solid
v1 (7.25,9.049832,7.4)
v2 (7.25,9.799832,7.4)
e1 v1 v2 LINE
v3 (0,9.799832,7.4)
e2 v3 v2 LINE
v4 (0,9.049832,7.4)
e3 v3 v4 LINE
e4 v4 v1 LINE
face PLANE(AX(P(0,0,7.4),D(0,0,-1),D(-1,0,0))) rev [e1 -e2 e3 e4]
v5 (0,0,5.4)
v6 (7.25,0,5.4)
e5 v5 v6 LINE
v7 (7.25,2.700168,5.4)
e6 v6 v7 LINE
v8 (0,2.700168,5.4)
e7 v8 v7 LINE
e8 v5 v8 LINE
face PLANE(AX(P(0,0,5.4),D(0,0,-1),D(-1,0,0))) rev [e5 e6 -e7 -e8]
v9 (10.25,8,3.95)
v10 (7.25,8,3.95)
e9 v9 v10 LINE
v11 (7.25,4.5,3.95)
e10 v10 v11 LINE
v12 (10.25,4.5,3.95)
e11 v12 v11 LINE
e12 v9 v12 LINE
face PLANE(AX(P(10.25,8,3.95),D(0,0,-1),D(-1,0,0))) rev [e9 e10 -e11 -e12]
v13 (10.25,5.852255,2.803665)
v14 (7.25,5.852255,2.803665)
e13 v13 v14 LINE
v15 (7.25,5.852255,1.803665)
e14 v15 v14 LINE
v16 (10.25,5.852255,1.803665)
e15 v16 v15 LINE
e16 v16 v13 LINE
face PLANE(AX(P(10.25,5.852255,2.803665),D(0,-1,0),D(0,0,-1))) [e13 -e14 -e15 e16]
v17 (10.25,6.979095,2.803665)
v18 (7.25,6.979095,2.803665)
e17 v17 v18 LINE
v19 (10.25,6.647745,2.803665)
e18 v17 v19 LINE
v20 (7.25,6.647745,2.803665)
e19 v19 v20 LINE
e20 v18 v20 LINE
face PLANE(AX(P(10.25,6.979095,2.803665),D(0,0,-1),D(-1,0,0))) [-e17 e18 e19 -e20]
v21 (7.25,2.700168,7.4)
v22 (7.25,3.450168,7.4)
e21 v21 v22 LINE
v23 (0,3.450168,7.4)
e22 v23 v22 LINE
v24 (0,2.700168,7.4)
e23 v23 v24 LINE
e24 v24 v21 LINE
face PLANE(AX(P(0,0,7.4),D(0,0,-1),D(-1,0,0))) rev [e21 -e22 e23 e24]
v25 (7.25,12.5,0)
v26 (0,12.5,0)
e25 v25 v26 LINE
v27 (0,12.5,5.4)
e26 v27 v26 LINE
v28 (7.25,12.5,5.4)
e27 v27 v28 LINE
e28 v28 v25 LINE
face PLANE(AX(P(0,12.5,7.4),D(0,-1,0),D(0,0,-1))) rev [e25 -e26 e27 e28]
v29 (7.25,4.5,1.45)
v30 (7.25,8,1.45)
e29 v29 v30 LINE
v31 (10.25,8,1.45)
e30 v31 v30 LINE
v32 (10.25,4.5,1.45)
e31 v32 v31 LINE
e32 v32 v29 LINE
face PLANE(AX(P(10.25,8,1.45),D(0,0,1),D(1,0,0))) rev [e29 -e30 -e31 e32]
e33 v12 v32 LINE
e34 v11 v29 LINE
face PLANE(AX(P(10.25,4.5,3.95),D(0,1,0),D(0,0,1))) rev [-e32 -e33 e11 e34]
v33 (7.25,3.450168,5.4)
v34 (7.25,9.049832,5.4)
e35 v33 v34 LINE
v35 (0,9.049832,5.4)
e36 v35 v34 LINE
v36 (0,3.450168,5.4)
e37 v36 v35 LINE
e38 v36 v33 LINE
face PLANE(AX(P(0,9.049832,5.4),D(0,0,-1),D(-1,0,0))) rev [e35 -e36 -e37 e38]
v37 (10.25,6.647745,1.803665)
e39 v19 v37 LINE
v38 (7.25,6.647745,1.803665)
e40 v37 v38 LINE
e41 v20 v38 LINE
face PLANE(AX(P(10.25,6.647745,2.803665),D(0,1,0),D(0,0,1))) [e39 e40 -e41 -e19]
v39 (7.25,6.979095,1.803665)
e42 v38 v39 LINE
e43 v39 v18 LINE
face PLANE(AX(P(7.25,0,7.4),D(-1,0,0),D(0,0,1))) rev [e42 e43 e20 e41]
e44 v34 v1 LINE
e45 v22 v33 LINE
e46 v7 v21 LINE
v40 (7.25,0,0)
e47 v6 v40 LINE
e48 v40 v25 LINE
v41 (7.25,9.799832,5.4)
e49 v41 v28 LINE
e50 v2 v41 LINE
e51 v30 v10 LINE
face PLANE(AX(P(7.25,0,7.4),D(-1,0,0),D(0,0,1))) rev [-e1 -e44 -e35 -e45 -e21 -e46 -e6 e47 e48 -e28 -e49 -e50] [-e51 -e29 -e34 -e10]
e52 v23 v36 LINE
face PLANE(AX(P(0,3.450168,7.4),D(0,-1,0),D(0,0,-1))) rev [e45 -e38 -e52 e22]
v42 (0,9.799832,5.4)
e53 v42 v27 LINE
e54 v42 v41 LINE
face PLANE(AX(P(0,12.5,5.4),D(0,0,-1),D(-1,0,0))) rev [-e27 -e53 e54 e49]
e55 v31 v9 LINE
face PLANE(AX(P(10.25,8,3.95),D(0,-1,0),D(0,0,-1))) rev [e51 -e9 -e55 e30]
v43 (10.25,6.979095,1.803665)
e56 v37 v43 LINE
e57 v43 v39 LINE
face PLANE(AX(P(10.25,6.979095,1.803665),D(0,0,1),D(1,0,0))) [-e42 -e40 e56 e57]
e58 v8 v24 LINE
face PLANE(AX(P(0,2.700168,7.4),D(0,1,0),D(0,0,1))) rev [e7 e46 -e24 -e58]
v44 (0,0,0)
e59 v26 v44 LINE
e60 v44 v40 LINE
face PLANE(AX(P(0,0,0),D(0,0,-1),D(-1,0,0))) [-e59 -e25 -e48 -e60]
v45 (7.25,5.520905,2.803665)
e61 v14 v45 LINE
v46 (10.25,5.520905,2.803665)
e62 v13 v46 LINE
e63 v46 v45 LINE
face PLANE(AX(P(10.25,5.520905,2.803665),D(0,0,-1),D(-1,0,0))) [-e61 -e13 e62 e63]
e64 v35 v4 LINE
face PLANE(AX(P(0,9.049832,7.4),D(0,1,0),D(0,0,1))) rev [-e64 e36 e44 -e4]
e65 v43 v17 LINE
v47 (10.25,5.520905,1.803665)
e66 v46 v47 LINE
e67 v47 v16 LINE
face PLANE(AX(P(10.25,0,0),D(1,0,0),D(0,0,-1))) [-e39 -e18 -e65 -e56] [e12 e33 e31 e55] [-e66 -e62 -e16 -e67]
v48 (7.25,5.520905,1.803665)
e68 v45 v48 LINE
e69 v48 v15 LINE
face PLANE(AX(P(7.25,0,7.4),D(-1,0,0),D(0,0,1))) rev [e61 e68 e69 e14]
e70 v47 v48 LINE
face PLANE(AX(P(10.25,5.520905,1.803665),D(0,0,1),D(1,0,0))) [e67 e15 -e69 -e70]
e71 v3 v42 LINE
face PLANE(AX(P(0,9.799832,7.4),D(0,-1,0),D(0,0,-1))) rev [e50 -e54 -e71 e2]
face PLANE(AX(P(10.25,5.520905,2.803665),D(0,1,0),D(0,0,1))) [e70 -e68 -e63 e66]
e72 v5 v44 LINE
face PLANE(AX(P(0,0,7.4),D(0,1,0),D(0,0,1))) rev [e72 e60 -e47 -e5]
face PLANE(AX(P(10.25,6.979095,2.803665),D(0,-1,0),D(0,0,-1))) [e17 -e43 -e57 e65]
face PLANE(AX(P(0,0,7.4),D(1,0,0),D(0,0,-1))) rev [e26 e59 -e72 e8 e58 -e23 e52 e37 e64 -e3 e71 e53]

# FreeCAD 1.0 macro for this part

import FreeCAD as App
import Part
import Sketcher

V = App.Vector

doc = App.newDocument("Part")
params = doc.addObject("Spreadsheet::Sheet", "Params")
for row, (alias, value) in enumerate([
    ("sketch1_height", "12.5 mm"),
    ("sketch1_width", "7.25 mm"),
    ("pad1_length", "7.4 mm"),
    ("sketch2_height", "2 mm"),
    ("sketch3_height", "1 mm"),
    ("sketch3_width", "3.5 mm"),
    ("sketch3_height2", "2.5 mm"),
    ("pad2_length", "3 mm"),
], start=1):
    params.set(f"A{row}", alias)
    params.set(f"B{row}", "=" + value)
    params.setAlias(f"B{row}", alias)

body = doc.addObject("PartDesign::Body", "Body")

# Sketch on XY plane
sketch1 = body.newObject("Sketcher::SketchObject", "Sketch")
sketch1.AttachmentSupport = (doc.getObject("XY_Plane"), [""])
sketch1.MapMode = "FlatFace"
sketch1.addGeometry(Part.LineSegment(V(0, 12.5, 0), V(0, 0, 0)), False)
sketch1.addGeometry(Part.LineSegment(V(0, 0, 0), V(7.25, 0, 0)), False)
sketch1.addGeometry(Part.LineSegment(V(7.25, 0, 0), V(7.25, 12.5, 0)), False)
sketch1.addGeometry(Part.LineSegment(V(7.25, 12.5, 0), V(0, 12.5, 0)), False)
sketch1.addConstraint(Sketcher.Constraint("Coincident", 0, 2, 1, 1))
sketch1.addConstraint(Sketcher.Constraint("Coincident", 1, 2, 2, 1))
sketch1.addConstraint(Sketcher.Constraint("Coincident", 2, 2, 3, 1))
sketch1.addConstraint(Sketcher.Constraint("Coincident", 3, 2, 0, 1))
sketch1.addConstraint(Sketcher.Constraint("Vertical", 0))
sketch1.addConstraint(Sketcher.Constraint("Horizontal", 1))
sketch1.addConstraint(Sketcher.Constraint("Vertical", 2))
sketch1.addConstraint(Sketcher.Constraint("Horizontal", 3))
sketch1.addConstraint(Sketcher.Constraint("Coincident", 0, 2, -1, 1))
sketch1.addConstraint(Sketcher.Constraint("DistanceY", 0, 2, 0, 1, 12.5))
sketch1.addConstraint(Sketcher.Constraint("DistanceX", 1, 1, 1, 2, 7.25))
sketch1.setExpression("Constraints[9]", "Params.sketch1_height")
sketch1.setExpression("Constraints[10]", "Params.sketch1_width")
pad1 = body.newObject("PartDesign::Pad", "Pad")
pad1.Profile = sketch1
pad1.setExpression("Length", "Params.pad1_length")

# Sketch on YZ plane
sketch2 = body.newObject("Sketcher::SketchObject", "Sketch001")
sketch2.AttachmentSupport = (doc.getObject("YZ_Plane"), [""])
sketch2.MapMode = "FlatFace"
sketch2.AttachmentOffset = App.Placement(V(0, 0, 7.25), App.Rotation())
sketch2.addGeometry(Part.LineSegment(V(12.5, 7.4, 0), V(9.799832, 7.4, 0)), False)
sketch2.addGeometry(Part.LineSegment(V(9.799832, 7.4, 0), V(9.799832, 5.4, 0)), False)
sketch2.addGeometry(Part.LineSegment(V(9.799832, 5.4, 0), V(12.5, 5.4, 0)), False)
sketch2.addGeometry(Part.LineSegment(V(12.5, 5.4, 0), V(12.5, 7.4, 0)), False)
sketch2.addGeometry(Part.LineSegment(V(2.700168, 7.4, 0), V(0, 7.4, 0)), False)
sketch2.addGeometry(Part.LineSegment(V(0, 7.4, 0), V(0, 5.4, 0)), False)
sketch2.addGeometry(Part.LineSegment(V(0, 5.4, 0), V(2.700168, 5.4, 0)), False)
sketch2.addGeometry(Part.LineSegment(V(2.700168, 5.4, 0), V(2.700168, 7.4, 0)), False)
sketch2.addGeometry(Part.LineSegment(V(9.049832, 7.4, 0), V(3.450168, 7.4, 0)), False)
sketch2.addGeometry(Part.LineSegment(V(3.450168, 7.4, 0), V(3.450168, 5.4, 0)), False)
sketch2.addGeometry(Part.LineSegment(V(3.450168, 5.4, 0), V(9.049832, 5.4, 0)), False)
sketch2.addGeometry(Part.LineSegment(V(9.049832, 5.4, 0), V(9.049832, 7.4, 0)), False)
sketch2.addConstraint(Sketcher.Constraint("Coincident", 0, 2, 1, 1))
sketch2.addConstraint(Sketcher.Constraint("Coincident", 1, 2, 2, 1))
sketch2.addConstraint(Sketcher.Constraint("Coincident", 2, 2, 3, 1))
sketch2.addConstraint(Sketcher.Constraint("Coincident", 3, 2, 0, 1))
sketch2.addConstraint(Sketcher.Constraint("Coincident", 4, 2, 5, 1))
sketch2.addConstraint(Sketcher.Constraint("Coincident", 5, 2, 6, 1))
sketch2.addConstraint(Sketcher.Constraint("Coincident", 6, 2, 7, 1))
sketch2.addConstraint(Sketcher.Constraint("Coincident", 7, 2, 4, 1))
sketch2.addConstraint(Sketcher.Constraint("Coincident", 8, 2, 9, 1))
sketch2.addConstraint(Sketcher.Constraint("Coincident", 9, 2, 10, 1))
sketch2.addConstraint(Sketcher.Constraint("Coincident", 10, 2, 11, 1))
sketch2.addConstraint(Sketcher.Constraint("Coincident", 11, 2, 8, 1))
sketch2.addConstraint(Sketcher.Constraint("Horizontal", 0))
sketch2.addConstraint(Sketcher.Constraint("Vertical", 1))
sketch2.addConstraint(Sketcher.Constraint("Horizontal", 2))
sketch2.addConstraint(Sketcher.Constraint("Vertical", 3))
sketch2.addConstraint(Sketcher.Constraint("Horizontal", 4))
sketch2.addConstraint(Sketcher.Constraint("Vertical", 5))
sketch2.addConstraint(Sketcher.Constraint("Horizontal", 6))
sketch2.addConstraint(Sketcher.Constraint("Vertical", 7))
sketch2.addConstraint(Sketcher.Constraint("Horizontal", 8))
sketch2.addConstraint(Sketcher.Constraint("Vertical", 9))
sketch2.addConstraint(Sketcher.Constraint("Horizontal", 10))
sketch2.addConstraint(Sketcher.Constraint("Vertical", 11))
sketch2.addConstraint(Sketcher.Constraint("PointOnObject", 4, 2, -2))
sketch2.addConstraint(Sketcher.Constraint("Horizontal", 3, 2, 4, 2))
sketch2.addConstraint(Sketcher.Constraint("Horizontal", 2, 2, 5, 2))
sketch2.addConstraint(Sketcher.Constraint("Horizontal", 7, 2, 8, 2))
sketch2.addConstraint(Sketcher.Constraint("Horizontal", 6, 2, 9, 2))
sketch2.addConstraint(Sketcher.Constraint("Equal", 2, 4))
sketch2.addConstraint(Sketcher.Constraint("DistanceY", 1, 2, 1, 1, 2.0))
sketch2.addConstraint(Sketcher.Constraint("DistanceY", -1, 1, 0, 2, 7.4))
sketch2.addConstraint(Sketcher.Constraint("DistanceX", -1, 1, 2, 2, 12.5))
sketch2.addConstraint(Sketcher.Constraint("DistanceX", 7, 2, 8, 2, 0.75))
sketch2.addConstraint(Sketcher.Constraint("DistanceX", 10, 2, 1, 2, 0.75))
sketch2.addConstraint(Sketcher.Constraint("DistanceX", 0, 2, 0, 1, 2.700168))
sketch2.setExpression("Constraints[30]", "Params.sketch2_height")
pocket1 = body.newObject("PartDesign::Pocket", "Pocket")
pocket1.Profile = sketch2
pocket1.Type = "ThroughAll"

# Sketch on YZ plane
sketch3 = body.newObject("Sketcher::SketchObject", "Sketch002")
sketch3.AttachmentSupport = (doc.getObject("YZ_Plane"), [""])
sketch3.MapMode = "FlatFace"
sketch3.AttachmentOffset = App.Placement(V(0, 0, 7.25), App.Rotation())
sketch3.addGeometry(Part.LineSegment(V(8, 3.95, 0), V(4.5, 3.95, 0)), False)
sketch3.addGeometry(Part.LineSegment(V(4.5, 3.95, 0), V(4.5, 1.45, 0)), False)
sketch3.addGeometry(Part.LineSegment(V(4.5, 1.45, 0), V(8, 1.45, 0)), False)
sketch3.addGeometry(Part.LineSegment(V(8, 1.45, 0), V(8, 3.95, 0)), False)
sketch3.addGeometry(Part.LineSegment(V(5.520905, 1.803665, 0), V(5.520905, 2.803665, 0)), False)
sketch3.addGeometry(Part.LineSegment(V(5.520905, 2.803665, 0), V(5.852255, 2.803665, 0)), False)
sketch3.addGeometry(Part.LineSegment(V(5.852255, 2.803665, 0), V(5.852255, 1.803665, 0)), False)
sketch3.addGeometry(Part.LineSegment(V(5.852255, 1.803665, 0), V(5.520905, 1.803665, 0)), False)
sketch3.addGeometry(Part.LineSegment(V(6.647745, 1.803665, 0), V(6.647745, 2.803665, 0)), False)
sketch3.addGeometry(Part.LineSegment(V(6.647745, 2.803665, 0), V(6.979095, 2.803665, 0)), False)
sketch3.addGeometry(Part.LineSegment(V(6.979095, 2.803665, 0), V(6.979095, 1.803665, 0)), False)
sketch3.addGeometry(Part.LineSegment(V(6.979095, 1.803665, 0), V(6.647745, 1.803665, 0)), False)
sketch3.addConstraint(Sketcher.Constraint("Coincident", 0, 2, 1, 1))
sketch3.addConstraint(Sketcher.Constraint("Coincident", 1, 2, 2, 1))
sketch3.addConstraint(Sketcher.Constraint("Coincident", 2, 2, 3, 1))
sketch3.addConstraint(Sketcher.Constraint("Coincident", 3, 2, 0, 1))
sketch3.addConstraint(Sketcher.Constraint("Coincident", 4, 2, 5, 1))
sketch3.addConstraint(Sketcher.Constraint("Coincident", 5, 2, 6, 1))
sketch3.addConstraint(Sketcher.Constraint("Coincident", 6, 2, 7, 1))
sketch3.addConstraint(Sketcher.Constraint("Coincident", 7, 2, 4, 1))
sketch3.addConstraint(Sketcher.Constraint("Coincident", 8, 2, 9, 1))
sketch3.addConstraint(Sketcher.Constraint("Coincident", 9, 2, 10, 1))
sketch3.addConstraint(Sketcher.Constraint("Coincident", 10, 2, 11, 1))
sketch3.addConstraint(Sketcher.Constraint("Coincident", 11, 2, 8, 1))
sketch3.addConstraint(Sketcher.Constraint("Horizontal", 0))
sketch3.addConstraint(Sketcher.Constraint("Vertical", 1))
sketch3.addConstraint(Sketcher.Constraint("Horizontal", 2))
sketch3.addConstraint(Sketcher.Constraint("Vertical", 3))
sketch3.addConstraint(Sketcher.Constraint("Vertical", 4))
sketch3.addConstraint(Sketcher.Constraint("Horizontal", 5))
sketch3.addConstraint(Sketcher.Constraint("Vertical", 6))
sketch3.addConstraint(Sketcher.Constraint("Horizontal", 7))
sketch3.addConstraint(Sketcher.Constraint("Vertical", 8))
sketch3.addConstraint(Sketcher.Constraint("Horizontal", 9))
sketch3.addConstraint(Sketcher.Constraint("Vertical", 10))
sketch3.addConstraint(Sketcher.Constraint("Horizontal", 11))
sketch3.addConstraint(Sketcher.Constraint("Horizontal", 5, 2, 8, 2))
sketch3.addConstraint(Sketcher.Constraint("Horizontal", 7, 2, 10, 2))
sketch3.addConstraint(Sketcher.Constraint("Equal", 7, 9))
sketch3.addConstraint(Sketcher.Constraint("DistanceY", 4, 1, 4, 2, 1.0))
sketch3.addConstraint(Sketcher.Constraint("DistanceX", 0, 2, 0, 1, 3.5))
sketch3.addConstraint(Sketcher.Constraint("DistanceY", 1, 2, 1, 1, 2.5))
sketch3.addConstraint(Sketcher.Constraint("DistanceX", -1, 1, 2, 2, 8.0))
sketch3.addConstraint(Sketcher.Constraint("DistanceY", -1, 1, 0, 2, 3.95))
sketch3.addConstraint(Sketcher.Constraint("DistanceX", 5, 1, 5, 2, 0.33135))
sketch3.addConstraint(Sketcher.Constraint("DistanceX", 5, 2, 8, 2, 0.79549))
sketch3.addConstraint(Sketcher.Constraint("DistanceX", -1, 1, 4, 2, 5.520905))
sketch3.addConstraint(Sketcher.Constraint("DistanceY", -1, 1, 4, 2, 2.803665))
sketch3.setExpression("Constraints[27]", "Params.sketch3_height")
sketch3.setExpression("Constraints[28]", "Params.sketch3_width")
sketch3.setExpression("Constraints[29]", "Params.sketch3_height2")
pad2 = body.newObject("PartDesign::Pad", "Pad001")
pad2.Profile = sketch3
pad2.setExpression("Length", "Params.pad2_length")

doc.recompute()
